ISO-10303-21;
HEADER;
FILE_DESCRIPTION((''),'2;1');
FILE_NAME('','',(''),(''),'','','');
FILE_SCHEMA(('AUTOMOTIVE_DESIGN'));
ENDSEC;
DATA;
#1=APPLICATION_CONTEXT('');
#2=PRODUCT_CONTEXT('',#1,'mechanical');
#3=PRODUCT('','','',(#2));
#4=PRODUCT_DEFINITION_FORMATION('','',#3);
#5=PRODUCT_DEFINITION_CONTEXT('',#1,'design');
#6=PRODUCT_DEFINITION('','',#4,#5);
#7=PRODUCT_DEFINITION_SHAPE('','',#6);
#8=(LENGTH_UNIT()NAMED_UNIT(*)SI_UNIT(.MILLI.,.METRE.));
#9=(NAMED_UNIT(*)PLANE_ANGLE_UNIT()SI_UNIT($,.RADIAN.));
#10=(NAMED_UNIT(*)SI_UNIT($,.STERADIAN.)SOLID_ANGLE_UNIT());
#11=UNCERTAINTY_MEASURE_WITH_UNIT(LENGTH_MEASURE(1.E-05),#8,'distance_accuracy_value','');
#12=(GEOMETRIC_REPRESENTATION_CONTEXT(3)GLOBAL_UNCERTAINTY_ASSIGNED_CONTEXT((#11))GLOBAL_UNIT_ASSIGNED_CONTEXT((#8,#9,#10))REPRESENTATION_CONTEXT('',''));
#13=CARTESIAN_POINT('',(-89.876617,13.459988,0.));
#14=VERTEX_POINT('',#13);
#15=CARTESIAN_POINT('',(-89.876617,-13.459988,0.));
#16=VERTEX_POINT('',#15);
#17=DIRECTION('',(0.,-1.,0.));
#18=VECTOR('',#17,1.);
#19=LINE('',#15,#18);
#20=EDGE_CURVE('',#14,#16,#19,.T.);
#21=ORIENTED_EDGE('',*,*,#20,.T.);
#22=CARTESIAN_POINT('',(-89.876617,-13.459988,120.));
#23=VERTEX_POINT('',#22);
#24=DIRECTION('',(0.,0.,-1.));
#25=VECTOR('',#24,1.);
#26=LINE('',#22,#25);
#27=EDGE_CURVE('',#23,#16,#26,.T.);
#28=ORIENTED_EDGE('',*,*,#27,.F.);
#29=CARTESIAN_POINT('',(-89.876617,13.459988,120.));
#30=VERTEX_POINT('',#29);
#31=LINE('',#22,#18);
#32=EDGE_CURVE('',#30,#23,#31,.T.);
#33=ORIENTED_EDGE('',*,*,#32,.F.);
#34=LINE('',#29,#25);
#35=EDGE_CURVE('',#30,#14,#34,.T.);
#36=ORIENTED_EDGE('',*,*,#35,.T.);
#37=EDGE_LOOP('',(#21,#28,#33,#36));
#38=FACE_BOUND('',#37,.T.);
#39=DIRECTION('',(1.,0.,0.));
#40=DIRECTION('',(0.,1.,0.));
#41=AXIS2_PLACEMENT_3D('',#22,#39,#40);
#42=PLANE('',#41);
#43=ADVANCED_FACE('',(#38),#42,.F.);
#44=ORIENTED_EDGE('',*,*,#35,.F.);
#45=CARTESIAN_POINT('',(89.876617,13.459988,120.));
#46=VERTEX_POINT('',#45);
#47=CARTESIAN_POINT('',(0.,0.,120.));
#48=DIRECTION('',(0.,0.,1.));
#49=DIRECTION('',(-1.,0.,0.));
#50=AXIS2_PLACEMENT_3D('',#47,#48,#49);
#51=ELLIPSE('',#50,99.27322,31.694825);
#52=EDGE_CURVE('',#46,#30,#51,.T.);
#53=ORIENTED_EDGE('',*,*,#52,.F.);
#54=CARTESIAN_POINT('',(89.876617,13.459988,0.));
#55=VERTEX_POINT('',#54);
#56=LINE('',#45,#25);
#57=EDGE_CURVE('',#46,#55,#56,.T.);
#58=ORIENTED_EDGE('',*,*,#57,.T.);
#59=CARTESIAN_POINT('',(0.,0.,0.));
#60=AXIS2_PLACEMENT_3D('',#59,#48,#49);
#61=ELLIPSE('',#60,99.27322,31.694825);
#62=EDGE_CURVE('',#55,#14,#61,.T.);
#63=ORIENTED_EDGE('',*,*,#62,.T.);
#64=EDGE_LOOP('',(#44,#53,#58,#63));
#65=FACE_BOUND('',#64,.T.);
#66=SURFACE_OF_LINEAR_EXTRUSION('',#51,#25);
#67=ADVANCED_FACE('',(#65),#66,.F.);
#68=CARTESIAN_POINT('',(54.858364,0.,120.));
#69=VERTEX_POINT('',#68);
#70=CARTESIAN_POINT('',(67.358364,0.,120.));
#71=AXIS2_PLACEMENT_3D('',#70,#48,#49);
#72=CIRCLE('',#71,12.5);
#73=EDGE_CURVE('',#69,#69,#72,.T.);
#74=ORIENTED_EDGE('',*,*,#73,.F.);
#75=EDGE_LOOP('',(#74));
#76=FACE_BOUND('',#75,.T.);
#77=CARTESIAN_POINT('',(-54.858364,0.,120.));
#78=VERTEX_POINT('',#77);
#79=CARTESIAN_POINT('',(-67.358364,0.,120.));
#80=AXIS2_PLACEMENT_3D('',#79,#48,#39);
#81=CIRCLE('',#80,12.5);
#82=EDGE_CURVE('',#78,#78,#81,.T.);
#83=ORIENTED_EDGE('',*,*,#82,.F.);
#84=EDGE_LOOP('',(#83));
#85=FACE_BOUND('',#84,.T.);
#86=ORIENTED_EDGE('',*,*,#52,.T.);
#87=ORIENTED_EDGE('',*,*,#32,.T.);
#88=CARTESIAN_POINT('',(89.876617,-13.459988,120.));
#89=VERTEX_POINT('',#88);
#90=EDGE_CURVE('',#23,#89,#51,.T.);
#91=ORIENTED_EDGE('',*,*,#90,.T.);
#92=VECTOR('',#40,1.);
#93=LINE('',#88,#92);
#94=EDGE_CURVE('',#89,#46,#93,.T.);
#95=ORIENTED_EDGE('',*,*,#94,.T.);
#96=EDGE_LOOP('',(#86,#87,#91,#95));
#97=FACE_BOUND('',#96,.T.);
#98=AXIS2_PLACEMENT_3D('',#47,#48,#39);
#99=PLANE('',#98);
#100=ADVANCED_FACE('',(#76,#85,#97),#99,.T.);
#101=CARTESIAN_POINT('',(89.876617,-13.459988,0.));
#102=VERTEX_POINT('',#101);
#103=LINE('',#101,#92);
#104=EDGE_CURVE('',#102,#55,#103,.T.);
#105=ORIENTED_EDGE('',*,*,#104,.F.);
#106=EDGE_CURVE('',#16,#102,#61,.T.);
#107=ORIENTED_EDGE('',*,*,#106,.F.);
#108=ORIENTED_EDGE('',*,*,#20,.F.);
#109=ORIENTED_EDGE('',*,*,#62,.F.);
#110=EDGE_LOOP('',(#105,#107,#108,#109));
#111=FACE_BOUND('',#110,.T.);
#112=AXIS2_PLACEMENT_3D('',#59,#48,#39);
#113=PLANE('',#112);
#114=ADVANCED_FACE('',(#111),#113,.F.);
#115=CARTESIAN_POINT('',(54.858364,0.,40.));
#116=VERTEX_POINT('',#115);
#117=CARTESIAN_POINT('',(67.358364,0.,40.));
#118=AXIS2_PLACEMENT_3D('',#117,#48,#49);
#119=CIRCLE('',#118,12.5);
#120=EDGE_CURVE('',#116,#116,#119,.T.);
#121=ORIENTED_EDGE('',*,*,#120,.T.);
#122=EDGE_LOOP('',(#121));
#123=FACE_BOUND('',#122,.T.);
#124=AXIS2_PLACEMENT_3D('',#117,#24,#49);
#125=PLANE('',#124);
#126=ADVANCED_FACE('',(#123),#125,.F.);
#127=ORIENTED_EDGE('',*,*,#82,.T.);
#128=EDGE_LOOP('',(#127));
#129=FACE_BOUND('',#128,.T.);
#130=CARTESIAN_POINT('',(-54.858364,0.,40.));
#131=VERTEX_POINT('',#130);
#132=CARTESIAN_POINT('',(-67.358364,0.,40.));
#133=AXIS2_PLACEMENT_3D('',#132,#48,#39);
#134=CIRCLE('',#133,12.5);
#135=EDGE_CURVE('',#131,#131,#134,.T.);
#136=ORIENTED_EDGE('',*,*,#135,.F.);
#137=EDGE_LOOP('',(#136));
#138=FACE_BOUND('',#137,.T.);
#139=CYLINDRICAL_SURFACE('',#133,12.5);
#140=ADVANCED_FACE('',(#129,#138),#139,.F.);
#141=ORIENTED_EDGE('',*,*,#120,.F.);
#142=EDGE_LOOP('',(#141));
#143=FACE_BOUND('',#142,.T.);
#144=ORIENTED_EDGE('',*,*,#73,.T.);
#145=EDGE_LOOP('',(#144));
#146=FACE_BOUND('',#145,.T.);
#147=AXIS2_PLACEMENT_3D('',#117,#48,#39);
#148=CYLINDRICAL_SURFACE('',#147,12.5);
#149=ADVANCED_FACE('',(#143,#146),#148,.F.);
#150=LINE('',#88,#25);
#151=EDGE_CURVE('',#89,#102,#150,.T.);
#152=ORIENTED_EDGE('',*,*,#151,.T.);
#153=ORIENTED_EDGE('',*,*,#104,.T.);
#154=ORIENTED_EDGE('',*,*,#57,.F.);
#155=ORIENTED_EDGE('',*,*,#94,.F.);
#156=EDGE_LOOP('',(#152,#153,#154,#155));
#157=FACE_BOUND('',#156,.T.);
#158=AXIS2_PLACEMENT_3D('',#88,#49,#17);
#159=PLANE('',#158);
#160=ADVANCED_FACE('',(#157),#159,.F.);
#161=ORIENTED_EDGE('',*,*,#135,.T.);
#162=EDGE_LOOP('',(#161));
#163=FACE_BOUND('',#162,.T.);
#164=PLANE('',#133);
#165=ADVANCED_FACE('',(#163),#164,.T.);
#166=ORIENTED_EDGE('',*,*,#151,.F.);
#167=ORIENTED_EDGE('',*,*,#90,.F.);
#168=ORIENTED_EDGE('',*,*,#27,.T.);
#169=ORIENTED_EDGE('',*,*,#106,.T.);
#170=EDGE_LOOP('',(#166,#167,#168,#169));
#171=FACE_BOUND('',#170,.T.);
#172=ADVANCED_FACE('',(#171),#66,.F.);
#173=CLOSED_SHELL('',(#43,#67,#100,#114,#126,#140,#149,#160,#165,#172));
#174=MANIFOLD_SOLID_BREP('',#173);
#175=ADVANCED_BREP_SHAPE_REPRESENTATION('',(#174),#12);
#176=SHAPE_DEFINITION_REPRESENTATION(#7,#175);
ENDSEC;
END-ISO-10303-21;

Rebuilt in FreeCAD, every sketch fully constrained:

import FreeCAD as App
import Part
import Sketcher

doc = App.newDocument("Part")
body = doc.addObject("PartDesign::Body", "Body")

# Sketch on XY plane
sketch1 = body.newObject("Sketcher::SketchObject", "Sketch")
sketch1.AttachmentSupport = (doc.getObject("XY_Plane"), [""])
sketch1.MapMode = "FlatFace"
sketch1.addGeometry([
    Part.LineSegment(App.Vector(-89.876617, 13.459988, 0), App.Vector(-89.876617, -13.459988, 0)),
    Part.BSplineCurve([App.Vector(-89.876617, -13.459988, 0), App.Vector(0, -74.6332, 0), App.Vector(89.876617, -13.459988, 0)], [3, 3], [0.438602452, 2.702990202], False, 2, [1, 0.424674615, 1], False),
    Part.LineSegment(App.Vector(89.876617, -13.459988, 0), App.Vector(89.876617, 13.459988, 0)),
    Part.BSplineCurve([App.Vector(89.876617, 13.459988, 0), App.Vector(0, 74.6332, 0), App.Vector(-89.876617, 13.459988, 0)], [3, 3], [3.580195105, 5.844582856], False, 2, [1, 0.424674615, 1], False),
], False)
sketch1.addConstraint([
    Sketcher.Constraint("Block", 1),
    Sketcher.Constraint("Block", 3),
    Sketcher.Constraint("Coincident", 0, 2, 1, 1),
    Sketcher.Constraint("Coincident", 1, 2, 2, 1),
    Sketcher.Constraint("Coincident", 2, 2, 3, 1),
    Sketcher.Constraint("Coincident", 3, 2, 0, 1),
])
pad1 = body.newObject("PartDesign::Pad", "Pad")
pad1.Profile = sketch1
pad1.Length = 120

# Sketch on XY plane
sketch2 = body.newObject("Sketcher::SketchObject", "Sketch001")
sketch2.AttachmentSupport = (doc.getObject("XY_Plane"), [""])
sketch2.MapMode = "FlatFace"
sketch2.AttachmentOffset = App.Placement(App.Vector(0, 0, 120), App.Rotation())
sketch2.addGeometry([
    Part.Circle(App.Vector(-67, 0, 0), App.Vector(0, 0, 1), 12),
    Part.Circle(App.Vector(67, 0, 0), App.Vector(0, 0, 1), 12),
], False)
sketch2.addConstraint([
    Sketcher.Constraint("Equal", 0, 1),
    Sketcher.Constraint("Symmetric", 0, 3, 1, 3, -1, 1),
    Sketcher.Constraint("PointOnObject", 0, 3, -1),
    Sketcher.Constraint("Diameter", 0, 25.0),
    Sketcher.Constraint("DistanceX", 0, 3, 1, 3, 134.716729),
])
pocket1 = body.newObject("PartDesign::Pocket", "Pocket")
pocket1.Profile = sketch2
pocket1.Length = 80

doc.recompute()
